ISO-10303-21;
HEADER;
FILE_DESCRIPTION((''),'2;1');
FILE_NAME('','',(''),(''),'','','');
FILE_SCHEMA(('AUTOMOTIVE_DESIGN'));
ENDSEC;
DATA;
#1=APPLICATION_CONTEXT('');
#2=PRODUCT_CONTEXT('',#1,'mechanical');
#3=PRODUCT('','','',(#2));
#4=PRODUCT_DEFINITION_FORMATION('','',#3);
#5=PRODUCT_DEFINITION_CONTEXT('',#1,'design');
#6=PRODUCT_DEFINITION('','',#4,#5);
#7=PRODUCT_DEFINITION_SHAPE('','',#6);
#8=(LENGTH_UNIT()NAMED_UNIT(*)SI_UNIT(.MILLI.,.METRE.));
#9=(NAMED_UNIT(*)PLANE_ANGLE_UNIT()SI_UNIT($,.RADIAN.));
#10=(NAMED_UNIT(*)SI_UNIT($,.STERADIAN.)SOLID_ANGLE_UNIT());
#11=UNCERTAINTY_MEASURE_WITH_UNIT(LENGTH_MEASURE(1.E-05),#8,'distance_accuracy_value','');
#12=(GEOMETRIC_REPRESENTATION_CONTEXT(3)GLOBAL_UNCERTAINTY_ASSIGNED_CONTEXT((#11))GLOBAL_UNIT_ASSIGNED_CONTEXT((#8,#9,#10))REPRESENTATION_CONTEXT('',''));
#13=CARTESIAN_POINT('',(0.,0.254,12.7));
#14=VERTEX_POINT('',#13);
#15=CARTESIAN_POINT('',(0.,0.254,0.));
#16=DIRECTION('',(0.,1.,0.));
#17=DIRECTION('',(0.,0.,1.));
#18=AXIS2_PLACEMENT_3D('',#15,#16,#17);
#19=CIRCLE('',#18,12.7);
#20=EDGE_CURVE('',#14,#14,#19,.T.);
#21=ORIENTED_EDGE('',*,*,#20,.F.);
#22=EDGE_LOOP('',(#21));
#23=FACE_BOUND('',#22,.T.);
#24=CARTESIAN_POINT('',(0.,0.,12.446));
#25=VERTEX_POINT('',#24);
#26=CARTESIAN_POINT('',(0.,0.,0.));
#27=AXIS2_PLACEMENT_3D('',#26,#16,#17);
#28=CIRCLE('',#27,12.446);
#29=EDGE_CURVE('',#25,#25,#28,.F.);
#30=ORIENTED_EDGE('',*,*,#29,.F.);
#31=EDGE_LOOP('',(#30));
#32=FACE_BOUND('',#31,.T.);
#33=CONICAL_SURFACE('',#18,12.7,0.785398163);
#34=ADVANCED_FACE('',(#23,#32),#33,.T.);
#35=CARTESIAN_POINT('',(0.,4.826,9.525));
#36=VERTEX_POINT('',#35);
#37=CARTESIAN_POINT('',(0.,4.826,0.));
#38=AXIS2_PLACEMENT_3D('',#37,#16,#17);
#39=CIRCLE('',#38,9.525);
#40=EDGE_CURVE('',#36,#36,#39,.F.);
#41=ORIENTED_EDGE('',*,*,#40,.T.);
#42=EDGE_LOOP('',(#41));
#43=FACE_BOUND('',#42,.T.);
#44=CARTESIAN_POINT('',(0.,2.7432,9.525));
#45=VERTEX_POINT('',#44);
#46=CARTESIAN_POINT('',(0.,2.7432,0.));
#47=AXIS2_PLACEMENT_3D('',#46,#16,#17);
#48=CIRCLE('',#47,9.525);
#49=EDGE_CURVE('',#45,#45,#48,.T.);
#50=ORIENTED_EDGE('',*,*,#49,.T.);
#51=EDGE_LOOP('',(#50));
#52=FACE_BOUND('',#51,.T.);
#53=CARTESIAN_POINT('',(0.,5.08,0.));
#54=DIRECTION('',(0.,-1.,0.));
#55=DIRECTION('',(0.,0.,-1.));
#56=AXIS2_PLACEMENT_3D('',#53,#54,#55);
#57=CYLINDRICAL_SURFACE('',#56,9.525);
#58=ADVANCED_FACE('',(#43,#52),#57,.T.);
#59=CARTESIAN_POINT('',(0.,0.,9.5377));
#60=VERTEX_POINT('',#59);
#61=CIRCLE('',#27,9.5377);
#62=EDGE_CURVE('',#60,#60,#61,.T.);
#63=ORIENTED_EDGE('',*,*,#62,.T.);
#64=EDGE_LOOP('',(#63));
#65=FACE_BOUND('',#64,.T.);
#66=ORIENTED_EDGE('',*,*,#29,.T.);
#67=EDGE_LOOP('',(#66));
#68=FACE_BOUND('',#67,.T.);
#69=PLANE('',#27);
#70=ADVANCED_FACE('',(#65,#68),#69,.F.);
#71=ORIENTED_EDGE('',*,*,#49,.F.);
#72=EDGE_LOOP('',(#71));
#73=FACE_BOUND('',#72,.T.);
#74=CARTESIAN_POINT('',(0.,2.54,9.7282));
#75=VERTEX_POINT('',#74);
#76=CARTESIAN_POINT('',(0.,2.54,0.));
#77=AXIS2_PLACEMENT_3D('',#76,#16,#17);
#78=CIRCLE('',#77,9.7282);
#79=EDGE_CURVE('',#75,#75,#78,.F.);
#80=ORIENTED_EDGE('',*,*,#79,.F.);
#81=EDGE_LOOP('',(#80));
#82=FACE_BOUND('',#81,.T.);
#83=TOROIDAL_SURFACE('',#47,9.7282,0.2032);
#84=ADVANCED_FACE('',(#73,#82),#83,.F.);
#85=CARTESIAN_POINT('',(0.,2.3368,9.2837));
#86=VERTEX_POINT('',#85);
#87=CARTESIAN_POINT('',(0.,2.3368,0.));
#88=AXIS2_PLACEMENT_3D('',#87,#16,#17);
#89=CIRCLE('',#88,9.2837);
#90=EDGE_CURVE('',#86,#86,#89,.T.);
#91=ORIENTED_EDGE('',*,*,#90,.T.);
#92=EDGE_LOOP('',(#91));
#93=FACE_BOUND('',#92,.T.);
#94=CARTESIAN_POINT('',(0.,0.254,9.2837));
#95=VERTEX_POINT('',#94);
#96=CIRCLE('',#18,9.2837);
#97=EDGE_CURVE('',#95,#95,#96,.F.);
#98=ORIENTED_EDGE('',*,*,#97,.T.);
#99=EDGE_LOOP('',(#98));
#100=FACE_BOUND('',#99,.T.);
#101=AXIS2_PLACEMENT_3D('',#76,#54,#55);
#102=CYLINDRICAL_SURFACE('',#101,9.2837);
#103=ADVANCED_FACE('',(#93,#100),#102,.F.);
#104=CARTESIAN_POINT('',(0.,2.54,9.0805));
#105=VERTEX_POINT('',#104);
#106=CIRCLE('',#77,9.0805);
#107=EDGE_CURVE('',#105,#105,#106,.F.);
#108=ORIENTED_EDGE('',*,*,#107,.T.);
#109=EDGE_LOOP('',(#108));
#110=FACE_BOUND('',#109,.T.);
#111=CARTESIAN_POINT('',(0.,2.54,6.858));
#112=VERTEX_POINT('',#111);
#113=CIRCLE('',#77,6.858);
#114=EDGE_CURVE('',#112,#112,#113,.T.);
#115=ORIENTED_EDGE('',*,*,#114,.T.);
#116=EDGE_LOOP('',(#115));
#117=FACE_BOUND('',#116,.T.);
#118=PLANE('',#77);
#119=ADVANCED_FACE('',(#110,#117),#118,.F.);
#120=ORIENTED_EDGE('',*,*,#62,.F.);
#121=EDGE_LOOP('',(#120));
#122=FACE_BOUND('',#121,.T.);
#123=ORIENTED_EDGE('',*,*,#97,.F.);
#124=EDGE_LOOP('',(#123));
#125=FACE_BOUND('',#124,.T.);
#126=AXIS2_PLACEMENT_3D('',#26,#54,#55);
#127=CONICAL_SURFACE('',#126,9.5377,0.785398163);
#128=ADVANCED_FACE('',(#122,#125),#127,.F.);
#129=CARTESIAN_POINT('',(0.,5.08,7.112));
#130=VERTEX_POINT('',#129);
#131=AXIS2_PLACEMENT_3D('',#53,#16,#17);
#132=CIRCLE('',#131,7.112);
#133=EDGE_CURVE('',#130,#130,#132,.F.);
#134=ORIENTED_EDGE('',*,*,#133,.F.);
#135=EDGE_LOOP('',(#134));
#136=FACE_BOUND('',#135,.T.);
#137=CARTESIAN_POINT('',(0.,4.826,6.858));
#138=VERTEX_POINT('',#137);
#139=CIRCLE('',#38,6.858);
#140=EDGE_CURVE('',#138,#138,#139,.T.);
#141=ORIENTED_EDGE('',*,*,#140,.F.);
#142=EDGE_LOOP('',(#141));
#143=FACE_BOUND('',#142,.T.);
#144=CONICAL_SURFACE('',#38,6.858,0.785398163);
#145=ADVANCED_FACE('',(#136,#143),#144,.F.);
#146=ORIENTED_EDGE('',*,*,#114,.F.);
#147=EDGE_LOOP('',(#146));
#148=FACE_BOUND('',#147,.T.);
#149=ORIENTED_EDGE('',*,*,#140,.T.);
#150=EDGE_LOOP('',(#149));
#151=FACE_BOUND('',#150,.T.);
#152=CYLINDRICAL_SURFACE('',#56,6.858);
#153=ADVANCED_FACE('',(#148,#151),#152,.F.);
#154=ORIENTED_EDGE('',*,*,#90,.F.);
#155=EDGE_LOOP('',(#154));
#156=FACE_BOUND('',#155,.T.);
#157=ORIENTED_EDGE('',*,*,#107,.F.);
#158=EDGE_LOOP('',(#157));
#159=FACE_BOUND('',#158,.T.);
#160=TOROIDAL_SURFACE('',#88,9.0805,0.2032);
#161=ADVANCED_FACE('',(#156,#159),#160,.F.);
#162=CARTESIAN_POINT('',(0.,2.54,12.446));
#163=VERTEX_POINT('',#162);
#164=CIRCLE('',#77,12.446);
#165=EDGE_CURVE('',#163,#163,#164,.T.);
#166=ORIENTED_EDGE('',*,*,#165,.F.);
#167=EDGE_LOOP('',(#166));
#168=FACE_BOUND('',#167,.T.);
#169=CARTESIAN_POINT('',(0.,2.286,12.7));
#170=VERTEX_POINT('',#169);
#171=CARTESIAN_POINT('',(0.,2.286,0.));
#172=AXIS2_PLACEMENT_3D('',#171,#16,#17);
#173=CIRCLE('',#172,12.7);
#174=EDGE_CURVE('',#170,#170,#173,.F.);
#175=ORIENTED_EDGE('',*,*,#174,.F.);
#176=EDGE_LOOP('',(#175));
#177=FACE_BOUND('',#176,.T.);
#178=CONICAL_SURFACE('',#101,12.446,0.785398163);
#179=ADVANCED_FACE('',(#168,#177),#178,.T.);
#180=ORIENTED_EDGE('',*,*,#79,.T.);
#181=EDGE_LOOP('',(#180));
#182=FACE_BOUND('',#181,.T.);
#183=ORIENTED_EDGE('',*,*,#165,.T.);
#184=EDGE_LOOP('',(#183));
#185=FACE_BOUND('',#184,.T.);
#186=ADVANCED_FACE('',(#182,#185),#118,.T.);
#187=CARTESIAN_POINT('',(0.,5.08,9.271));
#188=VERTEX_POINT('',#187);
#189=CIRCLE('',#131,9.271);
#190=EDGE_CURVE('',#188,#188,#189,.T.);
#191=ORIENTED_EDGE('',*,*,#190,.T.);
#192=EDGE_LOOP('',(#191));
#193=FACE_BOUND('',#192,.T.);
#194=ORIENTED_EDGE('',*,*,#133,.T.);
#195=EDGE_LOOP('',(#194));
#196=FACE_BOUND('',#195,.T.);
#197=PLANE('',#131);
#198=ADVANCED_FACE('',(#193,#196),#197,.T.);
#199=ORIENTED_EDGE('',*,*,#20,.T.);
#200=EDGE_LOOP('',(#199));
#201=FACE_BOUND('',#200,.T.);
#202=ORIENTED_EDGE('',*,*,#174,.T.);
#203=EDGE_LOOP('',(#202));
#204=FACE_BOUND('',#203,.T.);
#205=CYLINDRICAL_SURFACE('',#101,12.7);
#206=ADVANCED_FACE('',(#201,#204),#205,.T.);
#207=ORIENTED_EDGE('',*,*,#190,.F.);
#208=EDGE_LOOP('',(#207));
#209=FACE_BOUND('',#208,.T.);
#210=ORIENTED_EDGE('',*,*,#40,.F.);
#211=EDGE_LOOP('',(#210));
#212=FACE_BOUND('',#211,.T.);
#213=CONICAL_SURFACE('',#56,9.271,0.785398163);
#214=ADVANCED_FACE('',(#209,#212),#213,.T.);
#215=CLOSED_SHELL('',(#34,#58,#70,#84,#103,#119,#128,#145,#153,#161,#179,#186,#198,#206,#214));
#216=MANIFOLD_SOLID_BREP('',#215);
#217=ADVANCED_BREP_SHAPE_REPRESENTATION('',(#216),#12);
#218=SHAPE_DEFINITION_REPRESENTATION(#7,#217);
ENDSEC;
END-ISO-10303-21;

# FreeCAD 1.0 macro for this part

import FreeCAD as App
import Part
import Sketcher
Q = App.Units.Quantity


def edges_at(feature, points):
    """Names of the edges that pass closest to the given points."""
    edges = feature.Shape.Edges
    near = lambda p: min(range(len(edges)), key=lambda i: edges[i].distToShape(Part.Vertex(*p))[0])
    return sorted({f"Edge{near(p) + 1}" for p in points})

doc = App.newDocument("Part")
body = doc.addObject("PartDesign::Body", "Body")

# Sketch on XZ plane
sketch1 = body.newObject("Sketcher::SketchObject", "Sketch")
sketch1.AttachmentSupport = (doc.getObject("XZ_Plane"), [""])
sketch1.MapMode = "FlatFace"
sketch1.addGeometry([
    Part.Circle(App.Vector(0, 0, 0), App.Vector(0, 0, 1), 13),
    Part.Circle(App.Vector(0, 0, 0), App.Vector(0, 0, 1), 9),
], False)
sketch1.addConstraint([
    Sketcher.Constraint("Coincident", 0, 3, -1, 1),
    Sketcher.Constraint("Coincident", 1, 3, -1, 1),
    Sketcher.Constraint("Diameter", 0, Q("1 in")),
    Sketcher.Constraint("Diameter", 1, Q("0.731 in")),
])
pad1 = body.newObject("PartDesign::Pad", "Pad")
pad1.Profile = sketch1
pad1.Length = Q("0.1 in")
pad1.Reversed = True

# Sketch on XZ plane
sketch2 = body.newObject("Sketcher::SketchObject", "Sketch001")
sketch2.AttachmentSupport = (doc.getObject("XZ_Plane"), [""])
sketch2.MapMode = "FlatFace"
sketch2.AttachmentOffset = App.Placement(App.Vector(0, 0, -0.1 * 25.4), App.Rotation())
sketch2.addGeometry([
    Part.Circle(App.Vector(0, 0, 0), App.Vector(0, 0, 1), 10),
    Part.Circle(App.Vector(0, 0, 0), App.Vector(0, 0, 1), 7),
], False)
sketch2.addConstraint([
    Sketcher.Constraint("Coincident", 0, 3, -1, 1),
    Sketcher.Constraint("Coincident", 1, 3, -1, 1),
    Sketcher.Constraint("Diameter", 0, Q("0.75 in")),
    Sketcher.Constraint("Diameter", 1, Q("0.54 in")),
])
pad2 = body.newObject("PartDesign::Pad", "Pad001")
pad2.Profile = sketch2
pad2.Length = Q("0.1 in")
pad2.Reversed = True
doc.recompute()

fillet = body.newObject("PartDesign::Fillet", "Fillet")
fillet.Base = (pad2, edges_at(pad2, [(0, 2.54, -9.284), (0, 2.54, -9.525)]))
fillet.Radius = Q("0.008 in")
doc.recompute()

chamfer = body.newObject("PartDesign::Chamfer", "Chamfer")
chamfer.Base = (fillet, edges_at(fillet, [
    (0, 5.08, -6.858),
    (0, 2.54, -12.7),
    (0, 0, -12.7),
    (0, 0, -9.284),
    (0, 5.08, -9.525),
]))
chamfer.Size = Q("0.01 in")

doc.recompute()
